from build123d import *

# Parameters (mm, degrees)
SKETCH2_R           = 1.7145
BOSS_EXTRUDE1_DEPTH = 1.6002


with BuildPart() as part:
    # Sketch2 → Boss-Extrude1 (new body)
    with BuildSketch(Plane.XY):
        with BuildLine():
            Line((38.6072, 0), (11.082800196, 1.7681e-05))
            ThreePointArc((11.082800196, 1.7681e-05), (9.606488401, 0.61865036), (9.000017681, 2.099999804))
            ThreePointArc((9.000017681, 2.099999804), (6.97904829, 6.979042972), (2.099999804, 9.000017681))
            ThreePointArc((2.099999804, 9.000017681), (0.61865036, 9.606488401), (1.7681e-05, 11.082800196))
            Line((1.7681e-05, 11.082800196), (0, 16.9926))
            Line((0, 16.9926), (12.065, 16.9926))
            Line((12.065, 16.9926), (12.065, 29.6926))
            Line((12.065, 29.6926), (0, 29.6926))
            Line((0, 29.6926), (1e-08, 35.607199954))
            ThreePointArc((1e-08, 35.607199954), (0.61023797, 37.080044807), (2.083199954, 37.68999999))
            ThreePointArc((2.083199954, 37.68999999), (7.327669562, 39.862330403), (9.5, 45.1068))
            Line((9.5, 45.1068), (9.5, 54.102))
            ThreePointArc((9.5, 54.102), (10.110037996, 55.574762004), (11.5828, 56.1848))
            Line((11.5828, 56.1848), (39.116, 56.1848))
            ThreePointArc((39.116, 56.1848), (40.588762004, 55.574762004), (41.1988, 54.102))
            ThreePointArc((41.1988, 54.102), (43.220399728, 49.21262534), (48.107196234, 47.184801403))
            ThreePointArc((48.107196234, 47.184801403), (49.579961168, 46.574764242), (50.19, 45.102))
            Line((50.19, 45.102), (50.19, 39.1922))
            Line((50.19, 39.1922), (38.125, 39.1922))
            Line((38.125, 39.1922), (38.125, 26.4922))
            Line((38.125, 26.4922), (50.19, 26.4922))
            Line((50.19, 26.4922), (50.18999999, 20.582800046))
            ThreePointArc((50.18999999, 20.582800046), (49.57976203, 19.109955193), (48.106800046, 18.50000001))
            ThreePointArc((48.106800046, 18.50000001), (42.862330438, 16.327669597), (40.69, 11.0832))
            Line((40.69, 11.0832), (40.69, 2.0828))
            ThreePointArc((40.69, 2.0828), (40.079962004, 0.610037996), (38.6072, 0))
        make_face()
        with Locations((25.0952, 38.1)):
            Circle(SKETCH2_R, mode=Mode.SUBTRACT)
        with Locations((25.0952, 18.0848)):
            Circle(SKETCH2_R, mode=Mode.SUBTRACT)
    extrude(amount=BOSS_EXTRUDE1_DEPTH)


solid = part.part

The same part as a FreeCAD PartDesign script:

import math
import FreeCAD as App
import Part
import Sketcher
Q = App.Units.Quantity

doc = App.newDocument("Part")
params = doc.addObject("Spreadsheet::Sheet", "Params")
for row, (alias, value) in enumerate([
    ("sketch1_diameter", "0.135 in"),
    ("sketch1_height", "0.5 in"),
    ("sketch1_radius", "0.082 in"),
    ("sketch1_radius2", "0.292 in"),
    ("sketch1_width", "0.475 in"),
    ("pad1_length", "0.063 in"),
], start=1):
    params.set(f"A{row}", alias)
    params.set(f"B{row}", "=" + value)
    params.setAlias(f"B{row}", alias)

body = doc.addObject("PartDesign::Body", "Body")

sketch1 = doc.addObject("Sketcher::SketchObject", "Sketch")
body.addObject(sketch1)
sketch1.AttachmentSupport = (doc.XY_Plane, [""])
sketch1.MapMode = "FlatFace"
sketch1.addGeometry([
    Part.LineSegment(App.Vector(11.1, 0, 0), App.Vector(38.6, 0, 0)),
    Part.ArcOfCircle(Part.Circle(App.Vector(38.6, 2.1, 0), App.Vector(0, 0, 1), 2.1), math.radians(-90), math.radians(0)),
    Part.LineSegment(App.Vector(40.7, 2.1, 0), App.Vector(40.7, 11.1, 0)),
    Part.ArcOfCircle(Part.Circle(App.Vector(48.1, 11.1, 0), App.Vector(0, 0, 1), 7.4), math.radians(90), math.radians(180)),
    Part.ArcOfCircle(Part.Circle(App.Vector(48.1, 20.6, 0), App.Vector(0, 0, 1), 2.1), math.radians(-90), math.radians(0)),
    Part.LineSegment(App.Vector(50.2, 20.6, 0), App.Vector(50.2, 26.5, 0)),
    Part.LineSegment(App.Vector(50.2, 26.5, 0), App.Vector(38.1, 26.5, 0)),
    Part.LineSegment(App.Vector(38.1, 26.5, 0), App.Vector(38.1, 39.2, 0)),
    Part.LineSegment(App.Vector(38.1, 39.2, 0), App.Vector(50.2, 39.2, 0)),
    Part.LineSegment(App.Vector(50.2, 39.2, 0), App.Vector(50.2, 45.1, 0)),
    Part.ArcOfCircle(Part.Circle(App.Vector(48.1, 45.1, 0), App.Vector(0, 0, 1), 2.1), math.radians(0), math.radians(90)),
    Part.ArcOfCircle(Part.Circle(App.Vector(48.1, 54.1, 0), App.Vector(0, 0, 1), 6.9), math.radians(180), math.radians(270)),
    Part.ArcOfCircle(Part.Circle(App.Vector(39.1, 54.1, 0), App.Vector(0, 0, 1), 2.1), math.radians(0), math.radians(90)),
    Part.LineSegment(App.Vector(39.1, 56.2, 0), App.Vector(11.6, 56.2, 0)),
    Part.ArcOfCircle(Part.Circle(App.Vector(11.6, 54.1, 0), App.Vector(0, 0, 1), 2.1), math.radians(90), math.radians(180)),
    Part.LineSegment(App.Vector(9.5, 54.1, 0), App.Vector(9.5, 45.1, 0)),
    Part.ArcOfCircle(Part.Circle(App.Vector(2.1, 45.1, 0), App.Vector(0, 0, 1), 7.4), math.radians(-90), math.radians(0)),
    Part.ArcOfCircle(Part.Circle(App.Vector(2.1, 35.6, 0), App.Vector(0, 0, 1), 2.1), math.radians(90), math.radians(180)),
    Part.LineSegment(App.Vector(0, 35.6, 0), App.Vector(0, 29.7, 0)),
    Part.LineSegment(App.Vector(0, 29.7, 0), App.Vector(12.1, 29.7, 0)),
    Part.LineSegment(App.Vector(12.1, 29.7, 0), App.Vector(12.1, 17, 0)),
    Part.LineSegment(App.Vector(12.1, 17, 0), App.Vector(0, 17, 0)),
    Part.LineSegment(App.Vector(0, 17, 0), App.Vector(0, 11.1, 0)),
    Part.ArcOfCircle(Part.Circle(App.Vector(2.1, 11.1, 0), App.Vector(0, 0, 1), 2.1), math.radians(-180), math.radians(-90)),
    Part.ArcOfCircle(Part.Circle(App.Vector(2.1, 2.1, 0), App.Vector(0, 0, 1), 6.9), math.radians(0), math.radians(90)),
    Part.ArcOfCircle(Part.Circle(App.Vector(11.1, 2.1, 0), App.Vector(0, 0, 1), 2.1), math.radians(180), math.radians(270)),
    Part.Circle(App.Vector(25.1, 18.1, 0), App.Vector(0, 0, 1), 1.7),
    Part.Circle(App.Vector(25.1, 38.1, 0), App.Vector(0, 0, 1), 1.7),
], False)
sketch1.addConstraint([
    Sketcher.Constraint("Tangent", 0, 2, 1, 1),
    Sketcher.Constraint("Tangent", 1, 2, 2, 1),
    Sketcher.Constraint("Tangent", 2, 2, 3, 2),
    Sketcher.Constraint("Coincident", 3, 1, 4, 1),
    Sketcher.Constraint("Coincident", 4, 2, 5, 1),
    Sketcher.Constraint("Coincident", 5, 2, 6, 1),
    Sketcher.Constraint("Coincident", 6, 2, 7, 1),
    Sketcher.Constraint("Coincident", 7, 2, 8, 1),
    Sketcher.Constraint("Coincident", 8, 2, 9, 1),
    Sketcher.Constraint("Tangent", 9, 2, 10, 1),
    Sketcher.Constraint("Coincident", 10, 2, 11, 2),
    Sketcher.Constraint("Coincident", 11, 1, 12, 1),
    Sketcher.Constraint("Tangent", 12, 2, 13, 1),
    Sketcher.Constraint("Tangent", 13, 2, 14, 1),
    Sketcher.Constraint("Tangent", 14, 2, 15, 1),
    Sketcher.Constraint("Tangent", 15, 2, 16, 2),
    Sketcher.Constraint("Coincident", 16, 1, 17, 1),
    Sketcher.Constraint("Coincident", 17, 2, 18, 1),
    Sketcher.Constraint("Coincident", 18, 2, 19, 1),
    Sketcher.Constraint("Coincident", 19, 2, 20, 1),
    Sketcher.Constraint("Coincident", 20, 2, 21, 1),
    Sketcher.Constraint("Coincident", 21, 2, 22, 1),
    Sketcher.Constraint("Coincident", 22, 2, 23, 1),
    Sketcher.Constraint("Coincident", 23, 2, 24, 2),
    Sketcher.Constraint("Coincident", 24, 1, 25, 1),
    Sketcher.Constraint("Coincident", 25, 2, 0, 1),
    Sketcher.Constraint("Vertical", 2),
    Sketcher.Constraint("Vertical", 5),
    Sketcher.Constraint("Horizontal", 6),
    Sketcher.Constraint("Vertical", 7),
    Sketcher.Constraint("Horizontal", 8),
    Sketcher.Constraint("Vertical", 9),
    Sketcher.Constraint("Horizontal", 13),
    Sketcher.Constraint("Vertical", 15),
    Sketcher.Constraint("Vertical", 18),
    Sketcher.Constraint("Horizontal", 19),
    Sketcher.Constraint("Vertical", 20),
    Sketcher.Constraint("Horizontal", 21),
    Sketcher.Constraint("Equal", 1, 10),
    Sketcher.Constraint("Equal", 10, 12),
    Sketcher.Constraint("Equal", 12, 14),
    Sketcher.Constraint("Equal", 3, 16),
    Sketcher.Constraint("Equal", 4, 17),
    Sketcher.Constraint("Equal", 23, 25),
    Sketcher.Constraint("Equal", 26, 27),
    Sketcher.Constraint("PointOnObject", 0, 2, -1),
    Sketcher.Constraint("PointOnObject", 17, 2, -2),
    Sketcher.Constraint("PointOnObject", 21, 2, -2),
    Sketcher.Constraint("Horizontal", 14, 3, 11, 1),
    Sketcher.Constraint("Vertical", 26, 3, 27, 3),
    Sketcher.Constraint("Vertical", 1, 3, 0, 2),
    Sketcher.Constraint("Vertical", 5, 2, 8, 2),
    Sketcher.Constraint("Equal", 8, 19),
    Sketcher.Constraint("Equal", 7, 20),
    Sketcher.Constraint("Diameter", 26, Q("0.135 in")),
    Sketcher.Constraint("DistanceY", 7, 1, 7, 2, Q("0.5 in")),
    Sketcher.Constraint("Radius", 1, Q("0.082 in")),
    Sketcher.Constraint("Radius", 3, Q("0.292 in")),
    Sketcher.Constraint("DistanceY", -1, 1, 27, 3, Q("1.5 in")),
    Sketcher.Constraint("DistanceX", 6, 2, 6, 1, Q("0.475 in")),
    Sketcher.Constraint("DistanceX", -1, 1, 12, 3, Q("1.54 in")),
    Sketcher.Constraint("DistanceY", -1, 1, 12, 3, Q("2.13 in")),
    Sketcher.Constraint("Radius", 4, Q("2.083 mm")),
    Sketcher.Constraint("Radius", 11, Q("6.9128 mm")),
    Sketcher.Constraint("Radius", 23, Q("2.0914 mm")),
    Sketcher.Constraint("DistanceY", 1, 3, 26, 3, Q("0.63 in")),
    Sketcher.Constraint("DistanceX", -1, 1, 26, 3, Q("0.988 in")),
    Sketcher.Constraint("DistanceY", -1, 1, 5, 2, Q("1.043 in")),
    Sketcher.Constraint("DistanceY", -1, 1, 18, 2, Q("1.169 in")),
    Sketcher.Constraint("Radius", 24, Q("6.90003 mm")),
    Sketcher.Constraint("DistanceX", 2, 2, 3, 1, Q("0.292 in")),
    Sketcher.Constraint("DistanceY", 3, 1, 4, 2, Q("0.082 in")),
    Sketcher.Constraint("DistanceX", 10, 2, 9, 2, Q("0.0820001 in")),
    Sketcher.Constraint("DistanceX", 16, 1, 15, 2, Q("0.292 in")),
    Sketcher.Constraint("DistanceY", 17, 2, 16, 1, Q("0.082 in")),
    Sketcher.Constraint("DistanceX", 13, 2, 13, 1, Q("27.5332 mm")),
    Sketcher.Constraint("DistanceY", 2, 1, 2, 2, Q("9.0004 mm")),
    Sketcher.Constraint("DistanceY", 9, 1, 9, 2, Q("5.9098 mm")),
    Sketcher.Constraint("DistanceY", 15, 2, 15, 1, Q("8.9952 mm")),
    Sketcher.Constraint("Distance", 0, Q("27.5244 mm")),
    Sketcher.Constraint("Distance", 22, Q("5.9098 mm")),
    Sketcher.Constraint("DistanceX", -1, 1, 1, 3, Q("38.6072 mm")),
    Sketcher.Constraint("DistanceX", -1, 1, 4, 3, Q("48.107 mm")),
    Sketcher.Constraint("DistanceX", -1, 1, 23, 3, Q("2.0914 mm")),
    Sketcher.Constraint("DistanceY", -1, 1, 23, 3, Q("11.0914 mm")),
    Sketcher.Constraint("DistanceX", -1, 1, 25, 3, Q("11.0914 mm")),
    Sketcher.Constraint("DistanceX", -1, 1, 23, 2, Q("2.1 mm")),
    Sketcher.Constraint("DistanceY", -1, 1, 24, 1, Q("2.1 mm")),
])
sketch1.setExpression("Constraints[54]", "Params.sketch1_diameter")
sketch1.setExpression("Constraints[55]", "Params.sketch1_height")
sketch1.setExpression("Constraints[56]", "Params.sketch1_radius")
sketch1.setExpression("Constraints[57]", "Params.sketch1_radius2")
sketch1.setExpression("Constraints[59]", "Params.sketch1_width")
pad1 = doc.addObject("PartDesign::Pad", "Pad")
body.addObject(pad1)
pad1.Profile = sketch1
pad1.setExpression("Length", "Params.pad1_length")

doc.recompute()
